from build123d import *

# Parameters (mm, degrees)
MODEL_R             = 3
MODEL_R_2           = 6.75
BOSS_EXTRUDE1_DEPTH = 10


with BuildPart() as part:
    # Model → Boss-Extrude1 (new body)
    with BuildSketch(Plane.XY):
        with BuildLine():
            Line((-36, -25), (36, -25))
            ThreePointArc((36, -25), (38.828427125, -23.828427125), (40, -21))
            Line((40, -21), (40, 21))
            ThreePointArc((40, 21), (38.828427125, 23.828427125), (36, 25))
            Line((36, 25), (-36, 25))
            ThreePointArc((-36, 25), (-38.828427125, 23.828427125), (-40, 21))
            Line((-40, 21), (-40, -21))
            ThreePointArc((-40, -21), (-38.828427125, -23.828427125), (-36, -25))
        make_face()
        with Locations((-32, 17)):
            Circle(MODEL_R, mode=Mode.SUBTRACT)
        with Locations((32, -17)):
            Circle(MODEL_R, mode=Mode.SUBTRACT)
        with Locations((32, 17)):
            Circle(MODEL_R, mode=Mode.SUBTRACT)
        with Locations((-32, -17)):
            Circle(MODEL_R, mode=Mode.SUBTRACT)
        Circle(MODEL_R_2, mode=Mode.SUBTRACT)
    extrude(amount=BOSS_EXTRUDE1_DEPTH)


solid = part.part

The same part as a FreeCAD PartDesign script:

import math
import FreeCAD as App
import Part
import Sketcher

doc = App.newDocument("Part")
body = doc.addObject("PartDesign::Body", "Body")

sketch1 = body.newObject("Sketcher::SketchObject", "Sketch")
sketch1.AttachmentSupport = (doc.getObject("XY_Plane"), [""])
sketch1.MapMode = "FlatFace"
sketch1.addGeometry([
    Part.LineSegment(App.Vector(-36, -25, 0), App.Vector(36, -25, 0)),
    Part.ArcOfCircle(Part.Circle(App.Vector(36, -21, 0), App.Vector(0, 0, 1), 4), math.radians(-90), math.radians(0)),
    Part.LineSegment(App.Vector(40, -21, 0), App.Vector(40, 21, 0)),
    Part.ArcOfCircle(Part.Circle(App.Vector(36, 21, 0), App.Vector(0, 0, 1), 4), math.radians(0), math.radians(90)),
    Part.LineSegment(App.Vector(36, 25, 0), App.Vector(-36, 25, 0)),
    Part.ArcOfCircle(Part.Circle(App.Vector(-36, 21, 0), App.Vector(0, 0, 1), 4), math.radians(90), math.radians(180)),
    Part.LineSegment(App.Vector(-40, 21, 0), App.Vector(-40, -21, 0)),
    Part.ArcOfCircle(Part.Circle(App.Vector(-36, -21, 0), App.Vector(0, 0, 1), 4), math.radians(180), math.radians(270)),
    Part.Circle(App.Vector(-32, -17, 0), App.Vector(0, 0, 1), 3),
    Part.Circle(App.Vector(32, -17, 0), App.Vector(0, 0, 1), 3),
    Part.Circle(App.Vector(-32, 17, 0), App.Vector(0, 0, 1), 3),
    Part.Circle(App.Vector(0, 0, 0), App.Vector(0, 0, 1), 6.8),
    Part.Circle(App.Vector(32, 17, 0), App.Vector(0, 0, 1), 3),
], False)
sketch1.addConstraint([
    Sketcher.Constraint("Tangent", 0, 2, 1, 1),
    Sketcher.Constraint("Tangent", 1, 2, 2, 1),
    Sketcher.Constraint("Tangent", 2, 2, 3, 1),
    Sketcher.Constraint("Tangent", 3, 2, 4, 1),
    Sketcher.Constraint("Tangent", 4, 2, 5, 1),
    Sketcher.Constraint("Tangent", 5, 2, 6, 1),
    Sketcher.Constraint("Tangent", 6, 2, 7, 1),
    Sketcher.Constraint("Tangent", 7, 2, 0, 1),
    Sketcher.Constraint("Horizontal", 0),
    Sketcher.Constraint("Vertical", 2),
    Sketcher.Constraint("Horizontal", 4),
    Sketcher.Constraint("Vertical", 6),
    Sketcher.Constraint("Coincident", 11, 3, -1, 1),
    Sketcher.Constraint("Equal", 1, 3),
    Sketcher.Constraint("Equal", 3, 5),
    Sketcher.Constraint("Equal", 5, 7),
    Sketcher.Constraint("Equal", 8, 9),
    Sketcher.Constraint("Equal", 9, 10),
    Sketcher.Constraint("Equal", 10, 12),
    Sketcher.Constraint("Symmetric", 1, 3, 5, 3, -1, 1),
    Sketcher.Constraint("Symmetric", 9, 3, 10, 3, -1, 1),
    Sketcher.Constraint("Symmetric", 8, 3, 12, 3, -1, 1),
    Sketcher.Constraint("Symmetric", 8, 3, 9, 3, -2),
    Sketcher.Constraint("Diameter", 8, 6.0),
    Sketcher.Constraint("Radius", 1, 4.0),
    Sketcher.Constraint("Diameter", 11, 13.5),
    Sketcher.Constraint("DistanceX", 0, 1, 0, 2, 72.0),
    Sketcher.Constraint("DistanceY", 2, 1, 2, 2, 42.0),
    Sketcher.Constraint("DistanceX", 8, 3, -1, 1, 32.0),
    Sketcher.Constraint("DistanceY", 8, 3, -1, 1, 17.0),
])
pad1 = body.newObject("PartDesign::Pad", "Pad")
pad1.Profile = sketch1
pad1.Length = 10

doc.recompute()
